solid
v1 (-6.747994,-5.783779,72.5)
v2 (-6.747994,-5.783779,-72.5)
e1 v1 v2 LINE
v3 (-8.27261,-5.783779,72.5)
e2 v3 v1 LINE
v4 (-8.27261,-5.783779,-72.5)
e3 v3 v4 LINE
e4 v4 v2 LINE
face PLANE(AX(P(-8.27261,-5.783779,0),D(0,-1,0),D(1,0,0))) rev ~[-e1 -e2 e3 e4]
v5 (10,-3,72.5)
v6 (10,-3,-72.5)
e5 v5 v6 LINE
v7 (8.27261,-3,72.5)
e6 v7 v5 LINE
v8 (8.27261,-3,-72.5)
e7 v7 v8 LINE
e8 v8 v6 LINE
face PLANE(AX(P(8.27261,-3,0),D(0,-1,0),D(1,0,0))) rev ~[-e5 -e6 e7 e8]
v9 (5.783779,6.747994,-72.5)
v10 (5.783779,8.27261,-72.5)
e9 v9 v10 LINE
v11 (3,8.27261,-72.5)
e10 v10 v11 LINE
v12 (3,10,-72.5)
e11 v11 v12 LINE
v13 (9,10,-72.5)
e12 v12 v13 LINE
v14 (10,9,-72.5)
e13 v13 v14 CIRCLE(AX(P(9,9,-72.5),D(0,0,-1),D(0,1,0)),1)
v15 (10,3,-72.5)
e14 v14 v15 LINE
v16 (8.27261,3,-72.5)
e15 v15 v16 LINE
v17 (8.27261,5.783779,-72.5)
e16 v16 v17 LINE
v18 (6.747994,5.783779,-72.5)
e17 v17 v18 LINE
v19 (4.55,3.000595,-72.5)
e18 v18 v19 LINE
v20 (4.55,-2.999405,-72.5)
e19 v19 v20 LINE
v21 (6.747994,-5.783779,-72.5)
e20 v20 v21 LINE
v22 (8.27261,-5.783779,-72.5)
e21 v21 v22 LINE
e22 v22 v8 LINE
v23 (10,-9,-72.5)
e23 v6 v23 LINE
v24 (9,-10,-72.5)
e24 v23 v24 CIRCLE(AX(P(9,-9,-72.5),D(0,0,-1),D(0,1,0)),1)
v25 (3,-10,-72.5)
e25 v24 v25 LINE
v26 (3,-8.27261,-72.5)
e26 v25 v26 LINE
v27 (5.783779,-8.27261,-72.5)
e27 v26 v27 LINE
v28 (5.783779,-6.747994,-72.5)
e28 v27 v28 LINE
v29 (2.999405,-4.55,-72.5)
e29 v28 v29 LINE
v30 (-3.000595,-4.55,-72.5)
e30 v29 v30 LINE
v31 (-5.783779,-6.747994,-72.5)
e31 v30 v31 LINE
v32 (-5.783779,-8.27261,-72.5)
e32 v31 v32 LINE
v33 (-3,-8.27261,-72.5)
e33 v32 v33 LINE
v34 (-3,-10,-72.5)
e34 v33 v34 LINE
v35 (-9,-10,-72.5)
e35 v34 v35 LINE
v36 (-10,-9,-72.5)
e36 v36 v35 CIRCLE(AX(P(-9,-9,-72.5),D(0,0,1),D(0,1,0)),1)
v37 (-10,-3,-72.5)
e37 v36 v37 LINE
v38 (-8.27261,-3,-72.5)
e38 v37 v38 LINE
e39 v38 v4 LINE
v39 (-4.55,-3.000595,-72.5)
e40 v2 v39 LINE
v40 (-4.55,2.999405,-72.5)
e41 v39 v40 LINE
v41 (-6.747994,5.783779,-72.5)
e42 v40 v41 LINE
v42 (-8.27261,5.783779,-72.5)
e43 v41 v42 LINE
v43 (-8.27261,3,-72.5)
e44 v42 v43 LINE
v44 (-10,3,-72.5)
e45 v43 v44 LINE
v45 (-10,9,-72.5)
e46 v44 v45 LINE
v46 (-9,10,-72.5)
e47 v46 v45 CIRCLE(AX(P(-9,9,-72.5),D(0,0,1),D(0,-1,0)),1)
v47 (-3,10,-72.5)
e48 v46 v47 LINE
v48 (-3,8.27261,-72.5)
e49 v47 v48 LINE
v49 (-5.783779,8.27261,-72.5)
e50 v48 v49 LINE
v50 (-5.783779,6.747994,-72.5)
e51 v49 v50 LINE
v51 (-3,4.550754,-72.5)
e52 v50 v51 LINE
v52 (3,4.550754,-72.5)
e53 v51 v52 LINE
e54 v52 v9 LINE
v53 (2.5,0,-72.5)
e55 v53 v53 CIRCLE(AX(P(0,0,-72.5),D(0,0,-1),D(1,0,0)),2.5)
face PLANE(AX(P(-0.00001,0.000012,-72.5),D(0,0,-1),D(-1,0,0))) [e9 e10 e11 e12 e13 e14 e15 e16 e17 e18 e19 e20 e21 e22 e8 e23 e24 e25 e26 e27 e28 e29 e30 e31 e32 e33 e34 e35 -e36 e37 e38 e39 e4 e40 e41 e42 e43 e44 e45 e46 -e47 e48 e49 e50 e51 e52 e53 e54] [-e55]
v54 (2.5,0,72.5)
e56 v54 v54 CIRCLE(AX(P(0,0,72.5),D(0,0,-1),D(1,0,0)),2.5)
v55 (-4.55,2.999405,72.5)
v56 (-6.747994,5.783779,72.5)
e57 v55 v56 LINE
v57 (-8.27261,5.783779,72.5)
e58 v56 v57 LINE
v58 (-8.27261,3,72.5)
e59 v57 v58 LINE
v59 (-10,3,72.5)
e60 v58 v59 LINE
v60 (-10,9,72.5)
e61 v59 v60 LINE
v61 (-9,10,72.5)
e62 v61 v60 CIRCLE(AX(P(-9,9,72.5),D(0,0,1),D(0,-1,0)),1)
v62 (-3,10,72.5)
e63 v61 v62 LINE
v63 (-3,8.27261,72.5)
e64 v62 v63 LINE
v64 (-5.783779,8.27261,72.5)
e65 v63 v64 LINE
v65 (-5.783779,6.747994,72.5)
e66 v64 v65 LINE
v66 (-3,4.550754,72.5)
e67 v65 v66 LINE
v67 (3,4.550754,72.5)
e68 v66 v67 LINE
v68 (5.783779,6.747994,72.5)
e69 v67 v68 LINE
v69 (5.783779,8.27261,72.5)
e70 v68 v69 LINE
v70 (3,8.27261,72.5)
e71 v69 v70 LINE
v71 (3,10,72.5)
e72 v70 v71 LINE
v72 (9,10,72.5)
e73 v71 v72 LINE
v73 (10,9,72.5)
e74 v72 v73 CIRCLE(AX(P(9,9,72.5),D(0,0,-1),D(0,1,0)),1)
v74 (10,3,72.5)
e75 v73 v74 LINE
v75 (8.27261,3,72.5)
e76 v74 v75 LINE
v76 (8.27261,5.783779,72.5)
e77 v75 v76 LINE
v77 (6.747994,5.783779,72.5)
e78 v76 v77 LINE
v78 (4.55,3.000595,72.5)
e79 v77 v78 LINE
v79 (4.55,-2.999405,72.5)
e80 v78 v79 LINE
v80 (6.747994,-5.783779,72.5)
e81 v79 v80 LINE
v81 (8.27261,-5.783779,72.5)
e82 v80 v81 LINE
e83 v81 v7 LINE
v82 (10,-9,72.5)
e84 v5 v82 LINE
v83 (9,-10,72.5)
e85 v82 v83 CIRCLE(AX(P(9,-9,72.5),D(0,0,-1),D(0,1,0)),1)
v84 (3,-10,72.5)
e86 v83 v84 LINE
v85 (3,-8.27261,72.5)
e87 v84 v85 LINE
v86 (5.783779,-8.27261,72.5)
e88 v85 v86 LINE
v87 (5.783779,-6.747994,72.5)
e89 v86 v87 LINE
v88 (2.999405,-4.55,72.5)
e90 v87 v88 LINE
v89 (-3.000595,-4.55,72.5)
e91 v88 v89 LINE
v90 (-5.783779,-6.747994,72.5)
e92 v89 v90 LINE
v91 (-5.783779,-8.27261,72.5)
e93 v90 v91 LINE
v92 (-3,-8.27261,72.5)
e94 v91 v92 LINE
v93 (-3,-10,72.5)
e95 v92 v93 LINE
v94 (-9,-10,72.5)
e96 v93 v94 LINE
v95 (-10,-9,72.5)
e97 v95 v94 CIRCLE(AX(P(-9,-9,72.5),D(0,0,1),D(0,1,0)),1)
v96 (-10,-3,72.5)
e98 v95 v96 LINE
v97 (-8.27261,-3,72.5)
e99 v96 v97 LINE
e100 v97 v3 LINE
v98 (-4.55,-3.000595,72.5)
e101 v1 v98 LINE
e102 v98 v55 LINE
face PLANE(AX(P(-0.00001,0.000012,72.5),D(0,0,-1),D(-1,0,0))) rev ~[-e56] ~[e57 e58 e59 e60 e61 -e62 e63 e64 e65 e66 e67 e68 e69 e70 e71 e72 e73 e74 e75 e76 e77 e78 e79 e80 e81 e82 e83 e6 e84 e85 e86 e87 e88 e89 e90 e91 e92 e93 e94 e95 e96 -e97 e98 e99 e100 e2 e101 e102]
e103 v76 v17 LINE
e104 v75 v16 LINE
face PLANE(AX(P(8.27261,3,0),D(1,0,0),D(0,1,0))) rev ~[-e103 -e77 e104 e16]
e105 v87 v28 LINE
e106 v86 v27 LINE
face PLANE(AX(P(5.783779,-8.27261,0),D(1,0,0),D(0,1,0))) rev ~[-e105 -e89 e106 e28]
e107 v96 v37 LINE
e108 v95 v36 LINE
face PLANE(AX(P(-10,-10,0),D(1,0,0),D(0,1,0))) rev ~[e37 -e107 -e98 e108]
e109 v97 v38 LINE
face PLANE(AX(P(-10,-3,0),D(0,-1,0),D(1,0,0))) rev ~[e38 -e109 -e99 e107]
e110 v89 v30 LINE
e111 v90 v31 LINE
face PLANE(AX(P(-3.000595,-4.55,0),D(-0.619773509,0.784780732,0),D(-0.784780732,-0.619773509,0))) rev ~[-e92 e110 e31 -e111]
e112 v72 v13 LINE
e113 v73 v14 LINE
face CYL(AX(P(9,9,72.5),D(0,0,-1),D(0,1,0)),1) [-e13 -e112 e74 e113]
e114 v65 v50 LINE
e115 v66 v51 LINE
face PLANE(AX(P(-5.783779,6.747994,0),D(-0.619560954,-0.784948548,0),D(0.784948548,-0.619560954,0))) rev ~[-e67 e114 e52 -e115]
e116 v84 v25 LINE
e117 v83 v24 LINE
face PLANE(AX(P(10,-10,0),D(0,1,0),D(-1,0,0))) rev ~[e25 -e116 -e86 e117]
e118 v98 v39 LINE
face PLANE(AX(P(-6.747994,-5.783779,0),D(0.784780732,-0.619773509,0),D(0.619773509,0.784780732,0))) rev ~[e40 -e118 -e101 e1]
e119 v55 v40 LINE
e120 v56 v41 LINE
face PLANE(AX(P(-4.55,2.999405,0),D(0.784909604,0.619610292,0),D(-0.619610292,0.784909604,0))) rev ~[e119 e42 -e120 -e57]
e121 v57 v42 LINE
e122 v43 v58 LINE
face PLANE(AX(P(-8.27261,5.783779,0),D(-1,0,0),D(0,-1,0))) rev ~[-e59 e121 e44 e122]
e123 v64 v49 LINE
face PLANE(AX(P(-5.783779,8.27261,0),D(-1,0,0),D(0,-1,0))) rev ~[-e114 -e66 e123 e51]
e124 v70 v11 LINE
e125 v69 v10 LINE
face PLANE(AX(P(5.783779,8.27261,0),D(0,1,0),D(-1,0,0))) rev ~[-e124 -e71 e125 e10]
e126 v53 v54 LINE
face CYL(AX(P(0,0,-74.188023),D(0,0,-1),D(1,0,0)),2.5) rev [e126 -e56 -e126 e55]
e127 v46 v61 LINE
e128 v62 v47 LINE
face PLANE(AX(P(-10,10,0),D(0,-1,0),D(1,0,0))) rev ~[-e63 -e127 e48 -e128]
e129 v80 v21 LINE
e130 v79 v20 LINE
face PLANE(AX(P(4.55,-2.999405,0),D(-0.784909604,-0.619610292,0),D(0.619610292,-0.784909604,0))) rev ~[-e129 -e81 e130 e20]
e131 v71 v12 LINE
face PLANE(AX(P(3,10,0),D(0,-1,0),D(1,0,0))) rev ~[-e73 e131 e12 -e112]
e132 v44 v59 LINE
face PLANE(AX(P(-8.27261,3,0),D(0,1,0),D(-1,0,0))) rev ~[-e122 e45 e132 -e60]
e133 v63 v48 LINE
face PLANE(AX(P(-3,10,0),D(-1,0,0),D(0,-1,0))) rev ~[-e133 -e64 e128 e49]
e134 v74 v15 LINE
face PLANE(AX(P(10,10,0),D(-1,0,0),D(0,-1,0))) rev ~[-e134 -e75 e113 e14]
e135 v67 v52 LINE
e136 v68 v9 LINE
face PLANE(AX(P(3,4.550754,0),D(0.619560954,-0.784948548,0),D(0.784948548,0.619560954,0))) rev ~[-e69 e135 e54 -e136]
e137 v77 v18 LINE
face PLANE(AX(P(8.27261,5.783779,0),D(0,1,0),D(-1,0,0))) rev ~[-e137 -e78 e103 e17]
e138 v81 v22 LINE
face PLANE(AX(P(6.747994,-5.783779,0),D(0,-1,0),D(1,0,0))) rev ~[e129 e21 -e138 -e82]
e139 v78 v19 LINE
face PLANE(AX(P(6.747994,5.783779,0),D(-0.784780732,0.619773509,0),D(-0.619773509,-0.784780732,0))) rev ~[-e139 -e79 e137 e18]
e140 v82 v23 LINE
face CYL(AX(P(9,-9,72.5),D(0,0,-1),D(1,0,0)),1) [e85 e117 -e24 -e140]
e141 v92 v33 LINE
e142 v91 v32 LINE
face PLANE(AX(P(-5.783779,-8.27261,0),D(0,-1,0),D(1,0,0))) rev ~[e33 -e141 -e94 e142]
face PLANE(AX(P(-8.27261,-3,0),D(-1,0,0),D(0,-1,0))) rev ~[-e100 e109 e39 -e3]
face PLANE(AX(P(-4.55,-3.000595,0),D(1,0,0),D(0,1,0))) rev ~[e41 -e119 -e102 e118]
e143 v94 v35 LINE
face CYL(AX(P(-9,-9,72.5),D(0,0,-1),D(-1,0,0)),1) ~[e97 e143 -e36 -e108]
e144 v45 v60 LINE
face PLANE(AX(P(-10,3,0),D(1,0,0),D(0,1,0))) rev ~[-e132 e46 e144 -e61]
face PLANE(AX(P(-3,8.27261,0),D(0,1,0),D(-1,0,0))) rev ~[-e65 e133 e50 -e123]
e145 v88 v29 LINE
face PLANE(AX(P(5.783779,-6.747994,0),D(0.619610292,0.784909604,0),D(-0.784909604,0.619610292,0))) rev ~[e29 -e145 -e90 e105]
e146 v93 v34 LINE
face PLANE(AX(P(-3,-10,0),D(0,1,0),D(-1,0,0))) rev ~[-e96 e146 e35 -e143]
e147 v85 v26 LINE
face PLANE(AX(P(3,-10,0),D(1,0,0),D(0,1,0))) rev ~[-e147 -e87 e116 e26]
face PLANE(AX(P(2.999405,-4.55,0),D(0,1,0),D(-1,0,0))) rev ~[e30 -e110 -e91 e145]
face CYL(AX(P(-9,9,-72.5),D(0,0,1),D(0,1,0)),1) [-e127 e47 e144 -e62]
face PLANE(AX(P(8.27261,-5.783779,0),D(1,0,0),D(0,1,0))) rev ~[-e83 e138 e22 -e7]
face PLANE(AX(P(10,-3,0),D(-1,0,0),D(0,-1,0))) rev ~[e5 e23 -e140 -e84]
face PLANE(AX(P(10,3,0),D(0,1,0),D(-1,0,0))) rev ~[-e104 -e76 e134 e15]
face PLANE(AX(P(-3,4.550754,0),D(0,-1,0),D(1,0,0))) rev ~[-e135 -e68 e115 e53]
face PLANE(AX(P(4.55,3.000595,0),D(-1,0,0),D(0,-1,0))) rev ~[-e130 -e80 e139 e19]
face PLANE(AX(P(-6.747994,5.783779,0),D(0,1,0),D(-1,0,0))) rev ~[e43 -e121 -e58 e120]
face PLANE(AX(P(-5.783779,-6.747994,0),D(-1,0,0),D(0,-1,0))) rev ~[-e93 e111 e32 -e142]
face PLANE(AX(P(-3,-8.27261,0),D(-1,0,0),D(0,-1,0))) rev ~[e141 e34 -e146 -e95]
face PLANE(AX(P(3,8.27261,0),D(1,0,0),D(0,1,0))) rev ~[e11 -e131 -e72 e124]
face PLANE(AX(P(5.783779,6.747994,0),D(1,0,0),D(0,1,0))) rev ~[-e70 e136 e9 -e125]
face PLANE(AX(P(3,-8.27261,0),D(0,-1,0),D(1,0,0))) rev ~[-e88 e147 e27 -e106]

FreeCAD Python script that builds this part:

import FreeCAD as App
import Part
import Sketcher
Q = App.Units.Quantity


def edges_at(feature, points):
    """Names of the edges that pass closest to the given points."""
    edges = feature.Shape.Edges
    near = lambda p: min(range(len(edges)), key=lambda i: edges[i].distToShape(Part.Vertex(*p))[0])
    return sorted({f"Edge{near(p) + 1}" for p in points})


def add_polygon(sketch, points):
    """Adds a closed chain of lines whose ends are joined by coincident constraints."""
    first, n = sketch.GeometryCount, len(points)
    for a, b in zip(points, points[1:] + points[:1]):
        sketch.addGeometry(Part.LineSegment(App.Vector(*a, 0), App.Vector(*b, 0)), False)
    for i in range(n):
        sketch.addConstraint(Sketcher.Constraint("Coincident", first + i, 2, first + (i + 1) % n, 1))

doc = App.newDocument("Part")
body = doc.addObject("PartDesign::Body", "Body")

# Sketch on XY plane
sketch1 = doc.addObject("Sketcher::SketchObject", "Sketch")
body.addObject(sketch1)
sketch1.AttachmentSupport = (doc.XY_Plane, [""])
sketch1.MapMode = "FlatFace"
add_polygon(sketch1, [(-3, 10), (-10, 10), (-10, 3), (-8.3, 3), (-8.3, 5.8), (-6.7, 5.8), (-4.5, 3), (-4.5, -3), (-6.7, -5.8), (-8.3, -5.8), (-8.3, -3), (-10, -3), (-10, -10), (-3, -10), (-3, -8.3), (-5.8, -8.3), (-5.8, -6.7), (-3, -4.5), (3, -4.5), (5.8, -6.7), (5.8, -8.3), (3, -8.3), (3, -10), (10, -10), (10, -3), (8.3, -3), (8.3, -5.8), (6.7, -5.8), (4.5, -3), (4.5, 3), (6.7, 5.8), (8.3, 5.8), (8.3, 3), (10, 3), (10, 10), (3, 10), (3, 8.3), (5.8, 8.3), (5.8, 6.7), (3, 4.6), (-3, 4.6), (-5.8, 6.7), (-5.8, 8.3), (-3, 8.3)])  # lines 0-43
sketch1.addConstraint(Sketcher.Constraint("Horizontal", 0))
sketch1.addConstraint(Sketcher.Constraint("Vertical", 1))
sketch1.addConstraint(Sketcher.Constraint("Horizontal", 2))
sketch1.addConstraint(Sketcher.Constraint("Vertical", 3))
sketch1.addConstraint(Sketcher.Constraint("Horizontal", 4))
sketch1.addConstraint(Sketcher.Constraint("Vertical", 6))
sketch1.addConstraint(Sketcher.Constraint("Horizontal", 8))
sketch1.addConstraint(Sketcher.Constraint("Vertical", 9))
sketch1.addConstraint(Sketcher.Constraint("Horizontal", 10))
sketch1.addConstraint(Sketcher.Constraint("Vertical", 11))
sketch1.addConstraint(Sketcher.Constraint("Horizontal", 12))
sketch1.addConstraint(Sketcher.Constraint("Vertical", 13))
sketch1.addConstraint(Sketcher.Constraint("Horizontal", 14))
sketch1.addConstraint(Sketcher.Constraint("Vertical", 15))
sketch1.addConstraint(Sketcher.Constraint("Horizontal", 17))
sketch1.addConstraint(Sketcher.Constraint("Vertical", 19))
sketch1.addConstraint(Sketcher.Constraint("Horizontal", 20))
sketch1.addConstraint(Sketcher.Constraint("Vertical", 21))
sketch1.addConstraint(Sketcher.Constraint("Horizontal", 22))
sketch1.addConstraint(Sketcher.Constraint("Vertical", 23))
sketch1.addConstraint(Sketcher.Constraint("Horizontal", 24))
sketch1.addConstraint(Sketcher.Constraint("Vertical", 25))
sketch1.addConstraint(Sketcher.Constraint("Horizontal", 26))
sketch1.addConstraint(Sketcher.Constraint("Vertical", 28))
sketch1.addConstraint(Sketcher.Constraint("Horizontal", 30))
sketch1.addConstraint(Sketcher.Constraint("Vertical", 31))
sketch1.addConstraint(Sketcher.Constraint("Horizontal", 32))
sketch1.addConstraint(Sketcher.Constraint("Vertical", 33))
sketch1.addConstraint(Sketcher.Constraint("Horizontal", 34))
sketch1.addConstraint(Sketcher.Constraint("Vertical", 35))
sketch1.addConstraint(Sketcher.Constraint("Horizontal", 36))
sketch1.addConstraint(Sketcher.Constraint("Vertical", 37))
sketch1.addConstraint(Sketcher.Constraint("Horizontal", 39))
sketch1.addConstraint(Sketcher.Constraint("Vertical", 41))
sketch1.addConstraint(Sketcher.Constraint("Horizontal", 42))
sketch1.addConstraint(Sketcher.Constraint("Vertical", 43))
sketch1.addConstraint(Sketcher.Constraint("Symmetric", 0, 2, 22, 2, -1, 1))
sketch1.addConstraint(Sketcher.Constraint("Symmetric", 2, 2, 24, 2, -1, 1))
sketch1.addConstraint(Sketcher.Constraint("Symmetric", 4, 2, 26, 2, -1, 1))
sketch1.addConstraint(Sketcher.Constraint("Symmetric", 5, 2, 27, 2, -1, 1))
sketch1.addConstraint(Sketcher.Constraint("Symmetric", 7, 2, 29, 2, -1, 1))
sketch1.addConstraint(Sketcher.Constraint("Symmetric", 9, 2, 31, 2, -1, 1))
sketch1.addConstraint(Sketcher.Constraint("Symmetric", 11, 2, 33, 2, -1, 1))
sketch1.addConstraint(Sketcher.Constraint("Symmetric", 13, 2, 35, 2, -1, 1))
sketch1.addConstraint(Sketcher.Constraint("Symmetric", 15, 2, 37, 2, -1, 1))
sketch1.addConstraint(Sketcher.Constraint("Symmetric", 18, 2, 40, 2, -1, 1))
sketch1.addConstraint(Sketcher.Constraint("Symmetric", 20, 2, 42, 2, -1, 1))
sketch1.addConstraint(Sketcher.Constraint("Symmetric", 15, 2, 18, 2, -2))
sketch1.addConstraint(Sketcher.Constraint("Symmetric", 13, 2, 20, 2, -2))
sketch1.addConstraint(Sketcher.Constraint("Symmetric", 11, 2, 22, 2, -2))
sketch1.addConstraint(Sketcher.Constraint("Symmetric", 9, 2, 24, 2, -2))
sketch1.addConstraint(Sketcher.Constraint("Symmetric", 7, 2, 26, 2, -2))
sketch1.addConstraint(Sketcher.Constraint("Parallel", 7, 29))
sketch1.addConstraint(Sketcher.Constraint("Vertical", 35, 2, 38, 2))
sketch1.addConstraint(Sketcher.Constraint("Vertical", 13, 2, 39, 2))
sketch1.addConstraint(Sketcher.Constraint("Equal", 17, 39))
sketch1.addConstraint(Sketcher.Constraint("Equal", 34, 1))
sketch1.addConstraint(Sketcher.Constraint("Equal", 42, 3))
sketch1.addConstraint(Sketcher.Constraint("Equal", 39, 6))
sketch1.addConstraint(Sketcher.Constraint("Equal", 32, 13))
sketch1.addConstraint(Sketcher.Constraint("Equal", 30, 15))
sketch1.addConstraint(Sketcher.Constraint("Equal", 7, 16))
sketch1.addConstraint(Sketcher.Constraint("Equal", 5, 18))
sketch1.addConstraint(Sketcher.Constraint("Equal", 29, 38))
sketch1.addConstraint(Sketcher.Constraint("DistanceX", 0, 2, 0, 1, Q("7 mm")))
sketch1.addConstraint(Sketcher.Constraint("DistanceX", 17, 1, 17, 2, Q("6 mm")))
sketch1.addConstraint(Sketcher.Constraint("DistanceY", -1, 1, 0, 2, Q("10 mm")))
sketch1.addConstraint(Sketcher.Constraint("DistanceX", 5, 2, -1, 1, Q("4.55 mm")))
sketch1.addConstraint(Sketcher.Constraint("DistanceX", 2, 1, 2, 2, Q("1.72739 mm")))
sketch1.addConstraint(Sketcher.Constraint("DistanceX", 14, 2, 14, 1, Q("2.783779 mm")))
sketch1.addConstraint(Sketcher.Constraint("DistanceY", 15, 2, 6, 2, Q("3.747399 mm")))
sketch1.addConstraint(Sketcher.Constraint("Distance", 5, Q("3.547382 mm")))
pad1 = doc.addObject("PartDesign::Pad", "Pad")
body.addObject(pad1)
pad1.Profile = sketch1
pad1.Length = 145
pad1.Midplane = True

# Sketch on XY plane
sketch2 = doc.addObject("Sketcher::SketchObject", "Sketch001")
body.addObject(sketch2)
sketch2.AttachmentSupport = (doc.XY_Plane, [""])
sketch2.MapMode = "FlatFace"
sketch2.AttachmentOffset = App.Placement(App.Vector(0, 0, 72.5), App.Rotation())
sketch2.addGeometry(Part.Circle(App.Vector(0, 0, 0), App.Vector(0, 0, 1), 2.5), False)
sketch2.addConstraint(Sketcher.Constraint("Coincident", 0, 3, -1, 1))
sketch2.addConstraint(Sketcher.Constraint("Diameter", 0, Q("5 mm")))
pocket1 = doc.addObject("PartDesign::Pocket", "Pocket")
body.addObject(pocket1)
pocket1.Profile = sketch2
pocket1.Type = "ThroughAll"
pocket1.Midplane = True
doc.recompute()

fillet = doc.addObject("PartDesign::Fillet", "Fillet")
body.addObject(fillet)
fillet.Base = (pocket1, edges_at(pocket1, [
    (-10, 10, 0),
    (10, 10, 0),
    (10, -10, 0),
    (-10, -10, 0),
]))
fillet.Radius = 1

doc.recompute()
